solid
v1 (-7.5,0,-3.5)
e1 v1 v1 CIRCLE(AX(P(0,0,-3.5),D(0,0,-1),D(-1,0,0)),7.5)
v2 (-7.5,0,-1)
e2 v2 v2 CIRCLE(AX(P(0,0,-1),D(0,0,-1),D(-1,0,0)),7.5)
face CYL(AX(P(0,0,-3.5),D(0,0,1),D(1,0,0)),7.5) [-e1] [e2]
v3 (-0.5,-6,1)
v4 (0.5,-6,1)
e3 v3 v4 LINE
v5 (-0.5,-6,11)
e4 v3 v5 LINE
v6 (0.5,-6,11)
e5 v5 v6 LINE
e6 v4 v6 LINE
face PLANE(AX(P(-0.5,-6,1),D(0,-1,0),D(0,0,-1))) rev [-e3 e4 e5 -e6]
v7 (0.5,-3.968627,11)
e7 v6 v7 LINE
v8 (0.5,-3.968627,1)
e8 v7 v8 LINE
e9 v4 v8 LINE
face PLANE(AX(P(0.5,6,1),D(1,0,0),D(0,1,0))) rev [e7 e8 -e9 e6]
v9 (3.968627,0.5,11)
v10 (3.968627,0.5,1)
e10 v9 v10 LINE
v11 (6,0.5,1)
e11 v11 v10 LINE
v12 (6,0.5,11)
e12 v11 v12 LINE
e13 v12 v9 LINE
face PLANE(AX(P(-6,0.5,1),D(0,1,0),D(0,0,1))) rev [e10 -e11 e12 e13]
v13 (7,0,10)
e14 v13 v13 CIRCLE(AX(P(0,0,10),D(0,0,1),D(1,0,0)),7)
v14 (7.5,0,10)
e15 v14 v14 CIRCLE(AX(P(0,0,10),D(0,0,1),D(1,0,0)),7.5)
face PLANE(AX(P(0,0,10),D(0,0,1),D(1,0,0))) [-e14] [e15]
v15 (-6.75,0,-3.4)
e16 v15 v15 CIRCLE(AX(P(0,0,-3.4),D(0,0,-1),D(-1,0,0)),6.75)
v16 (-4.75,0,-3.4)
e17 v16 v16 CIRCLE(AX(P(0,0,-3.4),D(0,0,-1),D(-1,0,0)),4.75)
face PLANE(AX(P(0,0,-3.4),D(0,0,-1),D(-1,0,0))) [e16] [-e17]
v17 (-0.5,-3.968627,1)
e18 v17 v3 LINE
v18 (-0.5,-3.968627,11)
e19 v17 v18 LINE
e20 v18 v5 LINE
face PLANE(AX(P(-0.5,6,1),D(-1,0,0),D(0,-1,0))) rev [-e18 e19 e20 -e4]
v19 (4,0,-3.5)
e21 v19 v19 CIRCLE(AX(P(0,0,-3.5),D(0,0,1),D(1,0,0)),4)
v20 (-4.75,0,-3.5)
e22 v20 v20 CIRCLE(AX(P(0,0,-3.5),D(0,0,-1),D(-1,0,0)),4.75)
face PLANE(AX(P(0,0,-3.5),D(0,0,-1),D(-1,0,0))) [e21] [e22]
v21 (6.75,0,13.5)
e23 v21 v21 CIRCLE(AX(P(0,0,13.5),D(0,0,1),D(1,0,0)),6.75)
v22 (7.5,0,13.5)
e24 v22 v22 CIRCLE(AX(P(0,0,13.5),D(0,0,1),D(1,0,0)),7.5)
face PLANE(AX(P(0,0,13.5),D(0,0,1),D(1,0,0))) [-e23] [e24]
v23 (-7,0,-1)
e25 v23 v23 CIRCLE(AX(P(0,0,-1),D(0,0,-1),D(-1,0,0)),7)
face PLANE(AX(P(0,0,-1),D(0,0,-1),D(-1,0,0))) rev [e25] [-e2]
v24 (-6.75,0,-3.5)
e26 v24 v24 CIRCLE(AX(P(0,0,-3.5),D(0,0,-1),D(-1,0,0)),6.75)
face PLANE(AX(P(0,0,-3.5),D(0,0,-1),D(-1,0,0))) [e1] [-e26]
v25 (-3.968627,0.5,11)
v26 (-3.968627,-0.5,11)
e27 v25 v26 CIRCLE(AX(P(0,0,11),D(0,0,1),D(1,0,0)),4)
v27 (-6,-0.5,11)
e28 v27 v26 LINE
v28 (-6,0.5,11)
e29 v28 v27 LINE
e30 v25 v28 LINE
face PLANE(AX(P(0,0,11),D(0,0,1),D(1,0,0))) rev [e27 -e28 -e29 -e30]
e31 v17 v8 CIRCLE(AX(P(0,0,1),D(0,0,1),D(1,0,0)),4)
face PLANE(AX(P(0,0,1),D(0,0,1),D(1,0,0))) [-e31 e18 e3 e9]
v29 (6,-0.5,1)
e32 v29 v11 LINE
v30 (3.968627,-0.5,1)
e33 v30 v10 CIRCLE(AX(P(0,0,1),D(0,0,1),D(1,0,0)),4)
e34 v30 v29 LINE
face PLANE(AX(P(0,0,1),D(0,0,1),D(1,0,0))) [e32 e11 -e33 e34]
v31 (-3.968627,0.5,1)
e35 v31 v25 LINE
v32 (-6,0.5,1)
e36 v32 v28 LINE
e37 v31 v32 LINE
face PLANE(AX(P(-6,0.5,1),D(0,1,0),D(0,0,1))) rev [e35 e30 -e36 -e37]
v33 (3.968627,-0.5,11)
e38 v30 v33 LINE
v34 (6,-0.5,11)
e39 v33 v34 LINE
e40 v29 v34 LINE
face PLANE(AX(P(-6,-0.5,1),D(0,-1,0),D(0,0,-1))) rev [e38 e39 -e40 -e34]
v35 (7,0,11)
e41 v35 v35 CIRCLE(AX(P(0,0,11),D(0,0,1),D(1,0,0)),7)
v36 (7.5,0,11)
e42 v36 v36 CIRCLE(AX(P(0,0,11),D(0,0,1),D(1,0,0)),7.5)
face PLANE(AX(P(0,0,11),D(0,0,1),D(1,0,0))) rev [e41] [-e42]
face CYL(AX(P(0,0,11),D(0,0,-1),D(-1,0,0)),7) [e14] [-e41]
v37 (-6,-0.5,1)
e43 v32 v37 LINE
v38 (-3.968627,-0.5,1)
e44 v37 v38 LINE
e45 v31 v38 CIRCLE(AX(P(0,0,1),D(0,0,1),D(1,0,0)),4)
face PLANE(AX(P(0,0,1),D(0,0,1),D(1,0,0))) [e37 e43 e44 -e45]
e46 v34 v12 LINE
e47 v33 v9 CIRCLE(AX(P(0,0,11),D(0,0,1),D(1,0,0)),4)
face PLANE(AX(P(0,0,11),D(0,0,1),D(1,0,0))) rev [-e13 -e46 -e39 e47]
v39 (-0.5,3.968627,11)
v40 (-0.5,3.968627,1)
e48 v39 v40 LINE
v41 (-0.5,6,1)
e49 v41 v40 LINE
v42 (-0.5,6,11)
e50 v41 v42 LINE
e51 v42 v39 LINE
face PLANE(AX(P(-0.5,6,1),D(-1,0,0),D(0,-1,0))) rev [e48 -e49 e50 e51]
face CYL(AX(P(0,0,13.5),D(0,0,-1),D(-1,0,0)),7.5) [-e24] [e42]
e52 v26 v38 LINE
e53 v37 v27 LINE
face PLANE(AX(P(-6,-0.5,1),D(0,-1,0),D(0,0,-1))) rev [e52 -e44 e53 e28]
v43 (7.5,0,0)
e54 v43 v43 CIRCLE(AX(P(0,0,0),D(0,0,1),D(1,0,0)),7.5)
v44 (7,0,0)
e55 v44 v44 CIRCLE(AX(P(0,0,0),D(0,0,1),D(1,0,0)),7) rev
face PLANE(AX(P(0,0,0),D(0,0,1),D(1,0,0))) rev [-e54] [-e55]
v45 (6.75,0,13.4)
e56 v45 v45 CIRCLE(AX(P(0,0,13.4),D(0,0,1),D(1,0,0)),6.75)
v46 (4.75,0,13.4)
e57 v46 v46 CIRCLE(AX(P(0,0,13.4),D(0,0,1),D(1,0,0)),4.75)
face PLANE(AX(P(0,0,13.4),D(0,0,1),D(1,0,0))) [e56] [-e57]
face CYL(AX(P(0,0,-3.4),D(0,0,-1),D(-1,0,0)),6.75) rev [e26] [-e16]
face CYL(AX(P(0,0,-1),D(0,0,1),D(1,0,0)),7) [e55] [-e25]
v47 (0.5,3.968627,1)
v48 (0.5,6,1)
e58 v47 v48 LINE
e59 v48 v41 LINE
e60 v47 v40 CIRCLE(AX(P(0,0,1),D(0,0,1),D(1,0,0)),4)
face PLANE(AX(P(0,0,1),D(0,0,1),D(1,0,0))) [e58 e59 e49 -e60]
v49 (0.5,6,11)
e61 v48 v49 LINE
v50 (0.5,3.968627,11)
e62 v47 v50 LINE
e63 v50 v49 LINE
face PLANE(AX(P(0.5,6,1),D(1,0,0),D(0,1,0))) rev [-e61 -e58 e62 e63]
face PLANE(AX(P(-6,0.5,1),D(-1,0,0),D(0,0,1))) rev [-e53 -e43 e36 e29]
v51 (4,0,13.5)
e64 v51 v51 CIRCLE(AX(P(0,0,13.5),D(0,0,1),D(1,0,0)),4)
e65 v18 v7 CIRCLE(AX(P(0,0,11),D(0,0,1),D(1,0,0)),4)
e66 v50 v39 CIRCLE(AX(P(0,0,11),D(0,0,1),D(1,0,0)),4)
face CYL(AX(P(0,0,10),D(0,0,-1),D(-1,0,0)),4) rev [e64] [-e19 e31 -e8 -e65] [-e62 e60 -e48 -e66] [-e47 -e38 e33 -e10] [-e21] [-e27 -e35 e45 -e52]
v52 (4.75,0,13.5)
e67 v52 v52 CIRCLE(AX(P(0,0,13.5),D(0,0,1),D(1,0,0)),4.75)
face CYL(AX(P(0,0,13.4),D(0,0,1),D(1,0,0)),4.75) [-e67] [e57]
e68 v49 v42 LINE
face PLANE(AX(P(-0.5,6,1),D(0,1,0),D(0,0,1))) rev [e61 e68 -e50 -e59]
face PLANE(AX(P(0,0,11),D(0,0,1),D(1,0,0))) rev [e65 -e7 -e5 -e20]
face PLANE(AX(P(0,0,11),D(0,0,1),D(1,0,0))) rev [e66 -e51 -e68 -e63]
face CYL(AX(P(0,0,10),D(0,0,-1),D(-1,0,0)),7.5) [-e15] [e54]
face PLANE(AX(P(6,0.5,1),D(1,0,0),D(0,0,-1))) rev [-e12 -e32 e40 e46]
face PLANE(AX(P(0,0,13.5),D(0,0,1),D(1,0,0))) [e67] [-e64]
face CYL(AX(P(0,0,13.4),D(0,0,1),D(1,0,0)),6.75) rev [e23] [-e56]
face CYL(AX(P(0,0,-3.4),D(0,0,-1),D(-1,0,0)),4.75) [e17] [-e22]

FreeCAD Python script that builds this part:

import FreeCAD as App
import Part
import Sketcher

doc = App.newDocument("Part")
body = doc.addObject("PartDesign::Body", "Body")

# Sketch on XY plane
sketch1 = body.newObject("Sketcher::SketchObject", "Sketch")
sketch1.AttachmentSupport = (doc.getObject("XY_Plane"), [""])
sketch1.MapMode = "FlatFace"
sketch1.addGeometry([
    Part.Circle(App.Vector(0, 0, 0), App.Vector(0, 0, 1), 7.5),
    Part.Circle(App.Vector(0, 0, 0), App.Vector(0, 0, 1), 4),
], False)
sketch1.addConstraint([
    Sketcher.Constraint("Coincident", 0, 3, -1, 1),
    Sketcher.Constraint("Coincident", 1, 3, -1, 1),
    Sketcher.Constraint("Diameter", 0, 15.0),
    Sketcher.Constraint("Diameter", 1, 8.0),
])
pad1 = body.newObject("PartDesign::Pad", "Pad")
pad1.Profile = sketch1
pad1.Length = 10

# Sketch on XY plane
sketch2 = body.newObject("Sketcher::SketchObject", "Sketch001")
sketch2.AttachmentSupport = (doc.getObject("XY_Plane"), [""])
sketch2.MapMode = "FlatFace"
sketch2.AttachmentOffset = App.Placement(App.Vector(0, 0, 10), App.Rotation())
sketch2.addGeometry(Part.Circle(App.Vector(0, 0, 0), App.Vector(0, 0, 1), 7), False)
sketch2.addConstraint([
    Sketcher.Constraint("Coincident", 0, 3, -1, 1),
    Sketcher.Constraint("Diameter", 0, 14.0),
])
pad2 = body.newObject("PartDesign::Pad", "Pad001")
pad2.Profile = sketch2
pad2.Length = 1

# Sketch on XY plane
sketch3 = body.newObject("Sketcher::SketchObject", "Sketch002")
sketch3.AttachmentSupport = (doc.getObject("XY_Plane"), [""])
sketch3.MapMode = "FlatFace"
sketch3.AttachmentOffset = App.Placement(App.Vector(0, 0, -1), App.Rotation())
sketch3.addGeometry(Part.Circle(App.Vector(0, 0, 0), App.Vector(0, 0, 1), 7), False)
sketch3.addConstraint([
    Sketcher.Constraint("Coincident", 0, 3, -1, 1),
    Sketcher.Constraint("Diameter", 0, 14.0),
])
pad3 = body.newObject("PartDesign::Pad", "Pad002")
pad3.Profile = sketch3
pad3.Length = 1

# Sketch on XY plane
sketch4 = body.newObject("Sketcher::SketchObject", "Sketch003")
sketch4.AttachmentSupport = (doc.getObject("XY_Plane"), [""])
sketch4.MapMode = "FlatFace"
sketch4.AttachmentOffset = App.Placement(App.Vector(0, 0, -3.5), App.Rotation())
sketch4.addGeometry(Part.Circle(App.Vector(0, 0, 0), App.Vector(0, 0, 1), 8), False)
sketch4.addConstraint([
    Sketcher.Constraint("Coincident", 0, 3, -1, 1),
    Sketcher.Constraint("Diameter", 0, 15.0),
])
pad4 = body.newObject("PartDesign::Pad", "Pad003")
pad4.Profile = sketch4
pad4.Length = 2.5

# Sketch on XY plane
sketch5 = body.newObject("Sketcher::SketchObject", "Sketch004")
sketch5.AttachmentSupport = (doc.getObject("XY_Plane"), [""])
sketch5.MapMode = "FlatFace"
sketch5.AttachmentOffset = App.Placement(App.Vector(0, 0, 11), App.Rotation())
sketch5.addGeometry([
    Part.LineSegment(App.Vector(-0.5, 6, 0), App.Vector(-0.5, -6, 0)),
    Part.LineSegment(App.Vector(-0.5, -6, 0), App.Vector(0.5, -6, 0)),
    Part.LineSegment(App.Vector(0.5, -6, 0), App.Vector(0.5, 6, 0)),
    Part.LineSegment(App.Vector(0.5, 6, 0), App.Vector(-0.5, 6, 0)),
], False)
sketch5.addConstraint([
    Sketcher.Constraint("Coincident", 0, 2, 1, 1),
    Sketcher.Constraint("Coincident", 1, 2, 2, 1),
    Sketcher.Constraint("Coincident", 2, 2, 3, 1),
    Sketcher.Constraint("Coincident", 3, 2, 0, 1),
    Sketcher.Constraint("Vertical", 0),
    Sketcher.Constraint("Horizontal", 1),
    Sketcher.Constraint("Vertical", 2),
    Sketcher.Constraint("Horizontal", 3),
    Sketcher.Constraint("Symmetric", 0, 2, 2, 2, -1, 1),
    Sketcher.Constraint("DistanceX", 1, 1, 1, 2, 1.0),
    Sketcher.Constraint("DistanceY", 0, 2, 0, 1, 12.0),
])
pocket1 = body.newObject("PartDesign::Pocket", "Pocket")
pocket1.Profile = sketch5
pocket1.Length = 10

# Sketch on XY plane
sketch6 = body.newObject("Sketcher::SketchObject", "Sketch005")
sketch6.AttachmentSupport = (doc.getObject("XY_Plane"), [""])
sketch6.MapMode = "FlatFace"
sketch6.AttachmentOffset = App.Placement(App.Vector(0, 0, 11), App.Rotation())
sketch6.addGeometry([
    Part.LineSegment(App.Vector(-6, 0.5, 0), App.Vector(-6, -0.5, 0)),
    Part.LineSegment(App.Vector(-6, -0.5, 0), App.Vector(6, -0.5, 0)),
    Part.LineSegment(App.Vector(6, -0.5, 0), App.Vector(6, 0.5, 0)),
    Part.LineSegment(App.Vector(6, 0.5, 0), App.Vector(-6, 0.5, 0)),
], False)
sketch6.addConstraint([
    Sketcher.Constraint("Coincident", 0, 2, 1, 1),
    Sketcher.Constraint("Coincident", 1, 2, 2, 1),
    Sketcher.Constraint("Coincident", 2, 2, 3, 1),
    Sketcher.Constraint("Coincident", 3, 2, 0, 1),
    Sketcher.Constraint("Vertical", 0),
    Sketcher.Constraint("Horizontal", 1),
    Sketcher.Constraint("Vertical", 2),
    Sketcher.Constraint("Horizontal", 3),
    Sketcher.Constraint("Symmetric", 0, 2, 2, 2, -1, 1),
    Sketcher.Constraint("DistanceX", 1, 1, 1, 2, 12.0),
    Sketcher.Constraint("DistanceY", 0, 2, 0, 1, 1.0),
])
pocket2 = body.newObject("PartDesign::Pocket", "Pocket001")
pocket2.Profile = sketch6
pocket2.Length = 10

# Sketch on XY plane
sketch7 = body.newObject("Sketcher::SketchObject", "Sketch006")
sketch7.AttachmentSupport = (doc.getObject("XY_Plane"), [""])
sketch7.MapMode = "FlatFace"
sketch7.AttachmentOffset = App.Placement(App.Vector(0, 0, 11), App.Rotation())
sketch7.addGeometry(Part.Circle(App.Vector(0, 0, 0), App.Vector(0, 0, 1), 8), False)
sketch7.addConstraint([
    Sketcher.Constraint("Coincident", 0, 3, -1, 1),
    Sketcher.Constraint("Diameter", 0, 15.0),
])
pad5 = body.newObject("PartDesign::Pad", "Pad004")
pad5.Profile = sketch7
pad5.Length = 2.5

# Sketch on XY plane
sketch8 = body.newObject("Sketcher::SketchObject", "Sketch007")
sketch8.AttachmentSupport = (doc.getObject("XY_Plane"), [""])
sketch8.MapMode = "FlatFace"
sketch8.AttachmentOffset = App.Placement(App.Vector(0, 0, -3.5), App.Rotation())
sketch8.addGeometry(Part.Circle(App.Vector(0, 0, 0), App.Vector(0, 0, 1), 4), False)
sketch8.addConstraint([
    Sketcher.Constraint("Coincident", 0, 3, -1, 1),
    Sketcher.Constraint("Diameter", 0, 8.0),
])
pocket3 = body.newObject("PartDesign::Pocket", "Pocket002")
pocket3.Profile = sketch8
pocket3.Length = 17
pocket3.Reversed = True

# Sketch on XY plane
sketch9 = body.newObject("Sketcher::SketchObject", "Sketch008")
sketch9.AttachmentSupport = (doc.getObject("XY_Plane"), [""])
sketch9.MapMode = "FlatFace"
sketch9.AttachmentOffset = App.Placement(App.Vector(0, 0, 13.5), App.Rotation())
sketch9.addGeometry([
    Part.Circle(App.Vector(0, 0, 0), App.Vector(0, 0, 1), 6.8),
    Part.Circle(App.Vector(0, 0, 0), App.Vector(0, 0, 1), 4.8),
], False)
sketch9.addConstraint([
    Sketcher.Constraint("Coincident", 0, 3, -1, 1),
    Sketcher.Constraint("Coincident", 1, 3, -1, 1),
    Sketcher.Constraint("Diameter", 0, 13.5),
    Sketcher.Constraint("Diameter", 1, 9.5),
])
pocket4 = body.newObject("PartDesign::Pocket", "Pocket003")
pocket4.Profile = sketch9
pocket4.Length = 0.1

# Sketch on XY plane
sketch10 = body.newObject("Sketcher::SketchObject", "Sketch009")
sketch10.AttachmentSupport = (doc.getObject("XY_Plane"), [""])
sketch10.MapMode = "FlatFace"
sketch10.AttachmentOffset = App.Placement(App.Vector(0, 0, -3.4), App.Rotation())
sketch10.addGeometry([
    Part.Circle(App.Vector(0, 0, 0), App.Vector(0, 0, 1), 6.8),
    Part.Circle(App.Vector(0, 0, 0), App.Vector(0, 0, 1), 4.8),
], False)
sketch10.addConstraint([
    Sketcher.Constraint("Coincident", 0, 3, -1, 1),
    Sketcher.Constraint("Coincident", 1, 3, -1, 1),
    Sketcher.Constraint("Diameter", 0, 13.5),
    Sketcher.Constraint("Diameter", 1, 9.5),
])
pocket5 = body.newObject("PartDesign::Pocket", "Pocket004")
pocket5.Profile = sketch10
pocket5.Length = 0.1

doc.recompute()
